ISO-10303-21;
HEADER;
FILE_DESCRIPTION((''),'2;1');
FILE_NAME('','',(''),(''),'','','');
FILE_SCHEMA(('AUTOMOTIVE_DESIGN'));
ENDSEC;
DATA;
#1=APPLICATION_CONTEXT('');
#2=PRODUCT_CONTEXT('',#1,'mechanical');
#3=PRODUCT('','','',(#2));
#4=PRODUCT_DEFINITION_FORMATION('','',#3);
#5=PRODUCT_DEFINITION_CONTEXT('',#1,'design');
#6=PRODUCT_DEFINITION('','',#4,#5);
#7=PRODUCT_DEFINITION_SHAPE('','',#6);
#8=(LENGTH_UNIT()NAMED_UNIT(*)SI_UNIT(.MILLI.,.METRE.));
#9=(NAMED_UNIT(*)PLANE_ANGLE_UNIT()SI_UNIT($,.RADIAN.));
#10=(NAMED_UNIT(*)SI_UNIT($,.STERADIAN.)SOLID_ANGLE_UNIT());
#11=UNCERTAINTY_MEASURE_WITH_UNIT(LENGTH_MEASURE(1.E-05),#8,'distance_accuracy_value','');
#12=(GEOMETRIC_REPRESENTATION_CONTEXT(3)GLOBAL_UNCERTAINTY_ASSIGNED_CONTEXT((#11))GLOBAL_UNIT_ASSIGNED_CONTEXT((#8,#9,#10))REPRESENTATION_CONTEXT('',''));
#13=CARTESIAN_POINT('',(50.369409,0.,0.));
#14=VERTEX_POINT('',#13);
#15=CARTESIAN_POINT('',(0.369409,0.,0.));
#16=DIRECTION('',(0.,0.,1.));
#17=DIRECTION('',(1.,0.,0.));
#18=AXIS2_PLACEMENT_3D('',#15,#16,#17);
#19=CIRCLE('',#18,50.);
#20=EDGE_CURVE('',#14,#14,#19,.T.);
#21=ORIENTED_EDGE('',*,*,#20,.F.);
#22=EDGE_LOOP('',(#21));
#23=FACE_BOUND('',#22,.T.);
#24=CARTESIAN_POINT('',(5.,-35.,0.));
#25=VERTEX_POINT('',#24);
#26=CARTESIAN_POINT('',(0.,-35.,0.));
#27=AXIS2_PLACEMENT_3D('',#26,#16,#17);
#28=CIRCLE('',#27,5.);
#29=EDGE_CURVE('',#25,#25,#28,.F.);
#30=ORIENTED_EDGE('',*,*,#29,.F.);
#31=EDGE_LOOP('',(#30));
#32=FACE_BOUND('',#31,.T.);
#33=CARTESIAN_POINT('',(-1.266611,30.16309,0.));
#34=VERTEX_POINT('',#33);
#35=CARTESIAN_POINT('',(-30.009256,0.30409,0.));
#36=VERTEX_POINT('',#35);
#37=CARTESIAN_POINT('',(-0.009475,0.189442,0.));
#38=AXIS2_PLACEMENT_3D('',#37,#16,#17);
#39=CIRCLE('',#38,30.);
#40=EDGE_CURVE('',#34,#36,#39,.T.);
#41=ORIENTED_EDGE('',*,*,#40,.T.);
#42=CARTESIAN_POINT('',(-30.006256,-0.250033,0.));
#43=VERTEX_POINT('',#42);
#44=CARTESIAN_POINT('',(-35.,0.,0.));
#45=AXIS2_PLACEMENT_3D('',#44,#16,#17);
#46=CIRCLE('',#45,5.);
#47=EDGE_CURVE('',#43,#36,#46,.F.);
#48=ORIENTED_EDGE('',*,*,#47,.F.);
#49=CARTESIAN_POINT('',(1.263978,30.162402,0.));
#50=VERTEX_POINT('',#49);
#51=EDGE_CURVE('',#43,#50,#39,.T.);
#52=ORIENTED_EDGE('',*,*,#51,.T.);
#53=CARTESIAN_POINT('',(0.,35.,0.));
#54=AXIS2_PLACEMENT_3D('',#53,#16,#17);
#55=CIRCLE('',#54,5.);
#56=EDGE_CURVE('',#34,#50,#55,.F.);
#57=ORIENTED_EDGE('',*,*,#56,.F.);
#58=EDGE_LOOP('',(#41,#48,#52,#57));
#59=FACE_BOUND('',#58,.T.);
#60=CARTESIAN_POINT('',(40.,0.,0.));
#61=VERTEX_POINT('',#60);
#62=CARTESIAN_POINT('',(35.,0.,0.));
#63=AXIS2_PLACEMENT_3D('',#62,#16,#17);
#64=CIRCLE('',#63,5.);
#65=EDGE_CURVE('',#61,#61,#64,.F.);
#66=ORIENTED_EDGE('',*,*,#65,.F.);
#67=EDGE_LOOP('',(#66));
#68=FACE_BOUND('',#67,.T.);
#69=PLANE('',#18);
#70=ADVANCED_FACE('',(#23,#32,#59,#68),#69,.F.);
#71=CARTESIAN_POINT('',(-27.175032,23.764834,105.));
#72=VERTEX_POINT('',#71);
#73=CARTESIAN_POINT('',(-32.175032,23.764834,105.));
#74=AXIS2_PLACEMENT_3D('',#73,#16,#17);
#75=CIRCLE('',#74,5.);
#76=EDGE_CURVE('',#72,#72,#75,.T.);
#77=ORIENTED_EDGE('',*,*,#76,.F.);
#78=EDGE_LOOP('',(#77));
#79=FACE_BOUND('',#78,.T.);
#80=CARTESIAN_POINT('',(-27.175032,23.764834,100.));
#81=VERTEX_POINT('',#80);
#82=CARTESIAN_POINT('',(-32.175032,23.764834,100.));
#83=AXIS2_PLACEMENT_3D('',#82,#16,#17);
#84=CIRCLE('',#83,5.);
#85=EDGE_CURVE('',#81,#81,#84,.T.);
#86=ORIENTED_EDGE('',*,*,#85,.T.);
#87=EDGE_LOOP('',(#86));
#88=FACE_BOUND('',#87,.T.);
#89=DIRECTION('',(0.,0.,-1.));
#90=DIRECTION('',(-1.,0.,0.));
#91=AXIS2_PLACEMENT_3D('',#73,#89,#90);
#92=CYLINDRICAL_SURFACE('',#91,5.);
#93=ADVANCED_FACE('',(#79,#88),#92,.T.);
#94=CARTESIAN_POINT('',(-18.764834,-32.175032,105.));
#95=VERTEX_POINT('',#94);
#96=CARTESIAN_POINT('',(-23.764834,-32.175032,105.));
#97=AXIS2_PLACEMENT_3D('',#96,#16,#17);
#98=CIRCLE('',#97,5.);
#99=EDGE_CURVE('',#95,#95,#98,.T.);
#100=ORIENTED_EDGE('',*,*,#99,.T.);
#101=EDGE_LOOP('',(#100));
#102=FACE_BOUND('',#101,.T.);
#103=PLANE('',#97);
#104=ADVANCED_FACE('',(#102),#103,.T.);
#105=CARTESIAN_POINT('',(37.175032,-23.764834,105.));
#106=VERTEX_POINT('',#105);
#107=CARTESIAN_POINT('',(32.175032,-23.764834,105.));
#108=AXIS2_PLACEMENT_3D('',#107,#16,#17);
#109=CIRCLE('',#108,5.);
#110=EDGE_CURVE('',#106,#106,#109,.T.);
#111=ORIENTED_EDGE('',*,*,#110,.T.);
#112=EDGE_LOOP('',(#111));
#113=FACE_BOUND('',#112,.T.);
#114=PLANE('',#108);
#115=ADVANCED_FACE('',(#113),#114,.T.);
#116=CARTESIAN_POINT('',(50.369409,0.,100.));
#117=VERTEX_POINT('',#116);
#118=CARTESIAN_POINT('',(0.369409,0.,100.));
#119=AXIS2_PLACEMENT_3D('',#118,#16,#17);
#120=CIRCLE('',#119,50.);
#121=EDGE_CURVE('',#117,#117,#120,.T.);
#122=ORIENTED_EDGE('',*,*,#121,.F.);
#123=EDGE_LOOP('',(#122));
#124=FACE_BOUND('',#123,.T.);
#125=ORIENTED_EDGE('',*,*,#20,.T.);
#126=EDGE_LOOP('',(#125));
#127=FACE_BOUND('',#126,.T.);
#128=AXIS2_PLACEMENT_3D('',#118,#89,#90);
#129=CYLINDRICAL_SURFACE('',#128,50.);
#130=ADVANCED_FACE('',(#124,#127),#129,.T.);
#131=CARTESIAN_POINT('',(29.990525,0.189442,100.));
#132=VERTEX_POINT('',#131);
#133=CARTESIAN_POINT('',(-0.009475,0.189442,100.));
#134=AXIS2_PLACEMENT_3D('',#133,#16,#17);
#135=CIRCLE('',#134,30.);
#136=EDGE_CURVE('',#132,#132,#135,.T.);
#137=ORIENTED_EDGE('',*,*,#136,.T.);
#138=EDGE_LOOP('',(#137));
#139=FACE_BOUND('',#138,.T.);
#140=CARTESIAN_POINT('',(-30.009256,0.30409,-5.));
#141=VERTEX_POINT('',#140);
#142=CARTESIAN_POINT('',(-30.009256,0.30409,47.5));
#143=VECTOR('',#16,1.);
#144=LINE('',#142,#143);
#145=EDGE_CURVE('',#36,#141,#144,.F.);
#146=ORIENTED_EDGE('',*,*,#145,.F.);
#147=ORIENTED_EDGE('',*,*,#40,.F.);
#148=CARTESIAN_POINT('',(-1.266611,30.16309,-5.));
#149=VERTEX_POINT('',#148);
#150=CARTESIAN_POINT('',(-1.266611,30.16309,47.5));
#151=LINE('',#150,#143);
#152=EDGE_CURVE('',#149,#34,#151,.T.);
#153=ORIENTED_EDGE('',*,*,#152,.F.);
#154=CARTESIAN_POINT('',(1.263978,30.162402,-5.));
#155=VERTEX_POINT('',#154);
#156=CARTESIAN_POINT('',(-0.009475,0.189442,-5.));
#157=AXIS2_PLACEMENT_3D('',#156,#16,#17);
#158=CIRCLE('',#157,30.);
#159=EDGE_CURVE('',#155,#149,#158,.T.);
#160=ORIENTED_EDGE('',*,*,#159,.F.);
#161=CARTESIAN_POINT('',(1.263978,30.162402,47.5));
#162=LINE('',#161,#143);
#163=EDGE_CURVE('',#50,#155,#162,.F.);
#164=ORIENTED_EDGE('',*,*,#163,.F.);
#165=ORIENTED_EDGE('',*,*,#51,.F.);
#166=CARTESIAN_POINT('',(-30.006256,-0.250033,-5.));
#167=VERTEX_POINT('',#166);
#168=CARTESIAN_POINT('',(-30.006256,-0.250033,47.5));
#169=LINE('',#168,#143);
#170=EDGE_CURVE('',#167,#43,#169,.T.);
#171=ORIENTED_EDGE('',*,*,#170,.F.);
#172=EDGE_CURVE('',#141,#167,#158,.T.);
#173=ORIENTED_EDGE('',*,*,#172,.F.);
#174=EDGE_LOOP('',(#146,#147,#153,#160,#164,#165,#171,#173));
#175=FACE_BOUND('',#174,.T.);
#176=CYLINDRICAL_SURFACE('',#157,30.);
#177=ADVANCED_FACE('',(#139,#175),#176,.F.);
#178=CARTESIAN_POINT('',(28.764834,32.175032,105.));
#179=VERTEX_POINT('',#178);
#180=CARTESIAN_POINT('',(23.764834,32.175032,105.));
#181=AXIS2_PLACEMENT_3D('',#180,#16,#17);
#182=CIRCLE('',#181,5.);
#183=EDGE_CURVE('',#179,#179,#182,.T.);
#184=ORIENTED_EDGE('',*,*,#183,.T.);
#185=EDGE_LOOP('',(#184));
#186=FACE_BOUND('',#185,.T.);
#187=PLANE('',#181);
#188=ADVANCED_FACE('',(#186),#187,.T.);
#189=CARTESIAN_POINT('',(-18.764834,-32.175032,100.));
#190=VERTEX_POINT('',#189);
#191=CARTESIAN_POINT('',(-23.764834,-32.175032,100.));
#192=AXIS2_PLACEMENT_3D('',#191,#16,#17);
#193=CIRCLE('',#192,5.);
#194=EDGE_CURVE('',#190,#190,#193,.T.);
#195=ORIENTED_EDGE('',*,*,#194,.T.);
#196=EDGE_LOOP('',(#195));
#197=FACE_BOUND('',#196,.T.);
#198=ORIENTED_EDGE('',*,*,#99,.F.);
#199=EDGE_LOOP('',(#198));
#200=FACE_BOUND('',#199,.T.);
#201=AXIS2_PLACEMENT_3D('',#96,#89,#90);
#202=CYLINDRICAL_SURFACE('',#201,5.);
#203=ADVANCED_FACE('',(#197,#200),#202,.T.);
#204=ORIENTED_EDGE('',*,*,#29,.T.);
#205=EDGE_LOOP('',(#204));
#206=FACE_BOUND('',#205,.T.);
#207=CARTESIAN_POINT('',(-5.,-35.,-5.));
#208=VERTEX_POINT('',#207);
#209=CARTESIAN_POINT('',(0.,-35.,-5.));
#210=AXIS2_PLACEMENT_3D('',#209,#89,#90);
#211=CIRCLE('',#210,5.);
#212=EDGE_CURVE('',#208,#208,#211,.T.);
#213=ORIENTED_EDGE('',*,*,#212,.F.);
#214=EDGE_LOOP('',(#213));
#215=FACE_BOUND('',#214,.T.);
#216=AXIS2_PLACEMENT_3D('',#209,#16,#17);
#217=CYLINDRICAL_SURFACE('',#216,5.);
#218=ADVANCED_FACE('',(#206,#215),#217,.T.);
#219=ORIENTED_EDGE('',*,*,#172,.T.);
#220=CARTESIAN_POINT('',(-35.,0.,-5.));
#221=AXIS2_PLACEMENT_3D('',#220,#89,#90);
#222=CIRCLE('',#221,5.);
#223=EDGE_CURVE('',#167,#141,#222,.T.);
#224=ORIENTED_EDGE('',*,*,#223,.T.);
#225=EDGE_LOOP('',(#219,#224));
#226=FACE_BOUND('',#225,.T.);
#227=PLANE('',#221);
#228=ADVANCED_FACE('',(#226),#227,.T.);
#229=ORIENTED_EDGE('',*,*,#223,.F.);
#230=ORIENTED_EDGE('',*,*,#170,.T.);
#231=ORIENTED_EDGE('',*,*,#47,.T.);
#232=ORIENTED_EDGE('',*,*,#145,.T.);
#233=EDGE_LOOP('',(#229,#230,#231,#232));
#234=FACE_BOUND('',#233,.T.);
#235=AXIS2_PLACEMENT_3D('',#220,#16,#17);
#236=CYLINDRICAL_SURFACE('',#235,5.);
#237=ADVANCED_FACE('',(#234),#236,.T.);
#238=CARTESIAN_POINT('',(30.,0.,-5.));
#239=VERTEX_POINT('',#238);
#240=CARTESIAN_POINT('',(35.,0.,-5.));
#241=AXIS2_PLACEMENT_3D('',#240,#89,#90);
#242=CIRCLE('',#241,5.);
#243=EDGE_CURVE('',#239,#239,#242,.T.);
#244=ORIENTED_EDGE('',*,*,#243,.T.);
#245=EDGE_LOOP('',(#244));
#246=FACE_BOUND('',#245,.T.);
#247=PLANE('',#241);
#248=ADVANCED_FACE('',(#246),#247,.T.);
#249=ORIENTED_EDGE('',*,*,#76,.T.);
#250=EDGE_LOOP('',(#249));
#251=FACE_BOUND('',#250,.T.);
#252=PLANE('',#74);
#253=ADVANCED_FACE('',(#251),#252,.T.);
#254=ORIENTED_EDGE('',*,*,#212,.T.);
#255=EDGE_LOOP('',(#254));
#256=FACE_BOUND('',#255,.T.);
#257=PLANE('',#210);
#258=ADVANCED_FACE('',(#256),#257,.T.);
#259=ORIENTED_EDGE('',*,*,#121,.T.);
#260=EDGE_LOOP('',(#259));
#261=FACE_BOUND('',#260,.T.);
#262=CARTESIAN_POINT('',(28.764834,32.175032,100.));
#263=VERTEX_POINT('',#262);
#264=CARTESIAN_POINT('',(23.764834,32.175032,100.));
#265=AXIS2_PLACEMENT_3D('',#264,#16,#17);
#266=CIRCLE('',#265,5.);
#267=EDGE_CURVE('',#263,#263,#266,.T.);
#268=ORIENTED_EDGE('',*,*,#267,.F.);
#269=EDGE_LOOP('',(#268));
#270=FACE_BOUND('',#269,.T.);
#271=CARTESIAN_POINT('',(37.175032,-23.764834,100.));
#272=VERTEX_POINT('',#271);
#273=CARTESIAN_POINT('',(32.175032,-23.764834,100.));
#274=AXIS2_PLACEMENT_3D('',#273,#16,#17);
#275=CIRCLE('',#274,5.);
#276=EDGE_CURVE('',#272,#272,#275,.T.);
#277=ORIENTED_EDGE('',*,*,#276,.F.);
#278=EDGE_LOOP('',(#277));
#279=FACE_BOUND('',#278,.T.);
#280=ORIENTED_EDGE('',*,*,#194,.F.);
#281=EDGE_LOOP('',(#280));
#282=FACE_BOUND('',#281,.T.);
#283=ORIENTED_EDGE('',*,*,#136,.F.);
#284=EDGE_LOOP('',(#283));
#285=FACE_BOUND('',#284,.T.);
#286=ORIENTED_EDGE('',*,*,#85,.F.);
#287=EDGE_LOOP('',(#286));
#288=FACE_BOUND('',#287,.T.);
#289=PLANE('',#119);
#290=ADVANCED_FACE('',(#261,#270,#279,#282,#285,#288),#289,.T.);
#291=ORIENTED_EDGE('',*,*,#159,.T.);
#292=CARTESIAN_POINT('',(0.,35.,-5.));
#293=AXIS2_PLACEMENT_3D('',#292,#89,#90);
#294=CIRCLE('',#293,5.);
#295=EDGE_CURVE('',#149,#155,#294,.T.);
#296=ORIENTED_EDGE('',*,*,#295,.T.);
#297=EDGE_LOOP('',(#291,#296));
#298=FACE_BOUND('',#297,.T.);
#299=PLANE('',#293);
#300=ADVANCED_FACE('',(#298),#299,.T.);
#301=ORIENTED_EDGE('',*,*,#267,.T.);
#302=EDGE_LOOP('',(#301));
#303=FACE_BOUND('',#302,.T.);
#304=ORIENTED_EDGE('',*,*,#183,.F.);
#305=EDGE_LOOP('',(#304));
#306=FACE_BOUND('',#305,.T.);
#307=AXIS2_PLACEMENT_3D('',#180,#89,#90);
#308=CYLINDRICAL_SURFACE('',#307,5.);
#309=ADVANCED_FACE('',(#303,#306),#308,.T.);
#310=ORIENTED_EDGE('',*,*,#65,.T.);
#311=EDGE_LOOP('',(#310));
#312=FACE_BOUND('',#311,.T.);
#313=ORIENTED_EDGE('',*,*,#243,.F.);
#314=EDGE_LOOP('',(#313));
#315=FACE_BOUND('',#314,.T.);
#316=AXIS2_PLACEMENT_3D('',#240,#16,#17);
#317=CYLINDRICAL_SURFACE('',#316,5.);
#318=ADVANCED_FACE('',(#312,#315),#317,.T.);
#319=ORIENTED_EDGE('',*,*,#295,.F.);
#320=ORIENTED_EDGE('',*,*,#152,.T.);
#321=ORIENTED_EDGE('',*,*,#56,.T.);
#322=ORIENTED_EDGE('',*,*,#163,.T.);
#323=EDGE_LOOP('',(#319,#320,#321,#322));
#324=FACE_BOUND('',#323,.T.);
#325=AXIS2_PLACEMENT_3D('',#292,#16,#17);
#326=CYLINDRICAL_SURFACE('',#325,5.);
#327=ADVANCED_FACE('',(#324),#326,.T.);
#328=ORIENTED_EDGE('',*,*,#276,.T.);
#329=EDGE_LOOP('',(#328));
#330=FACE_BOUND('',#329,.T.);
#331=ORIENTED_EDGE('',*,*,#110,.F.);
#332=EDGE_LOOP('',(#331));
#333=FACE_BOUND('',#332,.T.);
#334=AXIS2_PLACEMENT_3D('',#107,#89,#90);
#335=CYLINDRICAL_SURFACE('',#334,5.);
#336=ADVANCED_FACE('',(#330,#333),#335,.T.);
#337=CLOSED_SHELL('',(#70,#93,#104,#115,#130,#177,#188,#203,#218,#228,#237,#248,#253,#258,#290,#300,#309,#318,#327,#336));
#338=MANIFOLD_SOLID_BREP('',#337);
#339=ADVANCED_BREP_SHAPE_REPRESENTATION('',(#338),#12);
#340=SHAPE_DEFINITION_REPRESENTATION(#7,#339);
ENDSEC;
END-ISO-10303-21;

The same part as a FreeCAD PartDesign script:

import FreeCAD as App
import Part
import Sketcher
from FreeCAD import Vector

doc = App.newDocument("Part")
params = doc.addObject("Spreadsheet::Sheet", "Params")
for row, (alias, value) in enumerate([
    ("sketch1_diameter", "100 mm"),
    ("pad1_length", "100 mm"),
    ("sketch2_diameter", "10 mm"),
    ("pad2_length", "5 mm"),
    ("sketch3_diameter", "10 mm"),
    ("pad3_length", "5 mm"),
    ("sketch4_diameter", "60 mm"),
], start=1):
    params.set(f"A{row}", alias)
    params.set(f"B{row}", "=" + value)
    params.setAlias(f"B{row}", alias)

body = doc.addObject("PartDesign::Body", "Body")

# Sketch on XY plane
sketch1 = body.newObject("Sketcher::SketchObject", "Sketch")
sketch1.AttachmentSupport = (doc.getObject("XY_Plane"), [""])
sketch1.MapMode = "FlatFace"
sketch1.addGeometry(Part.Circle(Vector(0, 0, 0), Vector(0, 0, 1), 50), False)
sketch1.addConstraint(Sketcher.Constraint("PointOnObject", 0, 3, -1))
sketch1.addConstraint(Sketcher.Constraint("Diameter", 0, 100.0))
sketch1.addConstraint(Sketcher.Constraint("DistanceX", -1, 1, 0, 3, 0.369409))
sketch1.setExpression("Constraints[1]", "Params.sketch1_diameter")
pad1 = body.newObject("PartDesign::Pad", "Pad")
pad1.Profile = sketch1
pad1.setExpression("Length", "Params.pad1_length")

# Sketch on XY plane
sketch2 = body.newObject("Sketcher::SketchObject", "Sketch001")
sketch2.AttachmentSupport = (doc.getObject("XY_Plane"), [""])
sketch2.MapMode = "FlatFace"
sketch2.addGeometry(Part.Circle(Vector(0, 35, 0), Vector(0, 0, 1), 5), False)
sketch2.addGeometry(Part.Circle(Vector(-35, 0, 0), Vector(0, 0, 1), 5), False)
sketch2.addGeometry(Part.Circle(Vector(0, -35, 0), Vector(0, 0, 1), 5), False)
sketch2.addGeometry(Part.Circle(Vector(35, 0, 0), Vector(0, 0, 1), 5), False)
sketch2.addConstraint(Sketcher.Constraint("Equal", 0, 1))
sketch2.addConstraint(Sketcher.Constraint("Equal", 1, 2))
sketch2.addConstraint(Sketcher.Constraint("Equal", 2, 3))
sketch2.addConstraint(Sketcher.Constraint("Symmetric", 0, 3, 2, 3, -1, 1))
sketch2.addConstraint(Sketcher.Constraint("Symmetric", 1, 3, 3, 3, -1, 1))
sketch2.addConstraint(Sketcher.Constraint("PointOnObject", 0, 3, -2))
sketch2.addConstraint(Sketcher.Constraint("PointOnObject", 1, 3, -1))
sketch2.addConstraint(Sketcher.Constraint("Diameter", 0, 10.0))
sketch2.addConstraint(Sketcher.Constraint("DistanceY", -1, 1, 0, 3, 35.0))
sketch2.addConstraint(Sketcher.Constraint("DistanceX", 1, 3, -1, 1, 35.0))
sketch2.setExpression("Constraints[7]", "Params.sketch2_diameter")
pad2 = body.newObject("PartDesign::Pad", "Pad001")
pad2.Profile = sketch2
pad2.setExpression("Length", "Params.pad2_length")
pad2.Reversed = True

# Sketch on XY plane
sketch3 = body.newObject("Sketcher::SketchObject", "Sketch002")
sketch3.AttachmentSupport = (doc.getObject("XY_Plane"), [""])
sketch3.MapMode = "FlatFace"
sketch3.AttachmentOffset = App.Placement(Vector(0, 0, 100), App.Rotation())
sketch3.addGeometry(Part.Circle(Vector(24, 32, 0), Vector(0, 0, 1), 5), False)
sketch3.addGeometry(Part.Circle(Vector(32, -24, 0), Vector(0, 0, 1), 5), False)
sketch3.addGeometry(Part.Circle(Vector(-24, -32, 0), Vector(0, 0, 1), 5), False)
sketch3.addGeometry(Part.Circle(Vector(-32, 24, 0), Vector(0, 0, 1), 5), False)
sketch3.addConstraint(Sketcher.Constraint("Equal", 0, 1))
sketch3.addConstraint(Sketcher.Constraint("Equal", 1, 2))
sketch3.addConstraint(Sketcher.Constraint("Equal", 2, 3))
sketch3.addConstraint(Sketcher.Constraint("Symmetric", 0, 3, 2, 3, -1, 1))
sketch3.addConstraint(Sketcher.Constraint("Symmetric", 1, 3, 3, 3, -1, 1))
sketch3.addConstraint(Sketcher.Constraint("Diameter", 0, 10.0))
sketch3.addConstraint(Sketcher.Constraint("DistanceX", 0, 3, 1, 3, 8.410198))
sketch3.addConstraint(Sketcher.Constraint("DistanceY", 2, 3, 1, 3, 8.410198))
sketch3.addConstraint(Sketcher.Constraint("DistanceY", -1, 1, 0, 3, 32.175032))
sketch3.addConstraint(Sketcher.Constraint("DistanceX", -1, 1, 1, 3, 32.175032))
sketch3.setExpression("Constraints[5]", "Params.sketch3_diameter")
pad3 = body.newObject("PartDesign::Pad", "Pad002")
pad3.Profile = sketch3
pad3.setExpression("Length", "Params.pad3_length")

# Sketch on XY plane
sketch4 = body.newObject("Sketcher::SketchObject", "Sketch003")
sketch4.AttachmentSupport = (doc.getObject("XY_Plane"), [""])
sketch4.MapMode = "FlatFace"
sketch4.AttachmentOffset = App.Placement(Vector(0, 0, 100), App.Rotation())
sketch4.addGeometry(Part.Circle(Vector(0, 0, 0), Vector(0, 0, 1), 30), False)
sketch4.addConstraint(Sketcher.Constraint("Diameter", 0, 60.0))
sketch4.addConstraint(Sketcher.Constraint("DistanceY", -1, 1, 0, 3, 0.189442))
sketch4.addConstraint(Sketcher.Constraint("DistanceX", 0, 3, -1, 1, 0.009475))
sketch4.setExpression("Constraints[0]", "Params.sketch4_diameter")
pocket1 = body.newObject("PartDesign::Pocket", "Pocket")
pocket1.Profile = sketch4
pocket1.Type = "ThroughAll"

doc.recompute()
